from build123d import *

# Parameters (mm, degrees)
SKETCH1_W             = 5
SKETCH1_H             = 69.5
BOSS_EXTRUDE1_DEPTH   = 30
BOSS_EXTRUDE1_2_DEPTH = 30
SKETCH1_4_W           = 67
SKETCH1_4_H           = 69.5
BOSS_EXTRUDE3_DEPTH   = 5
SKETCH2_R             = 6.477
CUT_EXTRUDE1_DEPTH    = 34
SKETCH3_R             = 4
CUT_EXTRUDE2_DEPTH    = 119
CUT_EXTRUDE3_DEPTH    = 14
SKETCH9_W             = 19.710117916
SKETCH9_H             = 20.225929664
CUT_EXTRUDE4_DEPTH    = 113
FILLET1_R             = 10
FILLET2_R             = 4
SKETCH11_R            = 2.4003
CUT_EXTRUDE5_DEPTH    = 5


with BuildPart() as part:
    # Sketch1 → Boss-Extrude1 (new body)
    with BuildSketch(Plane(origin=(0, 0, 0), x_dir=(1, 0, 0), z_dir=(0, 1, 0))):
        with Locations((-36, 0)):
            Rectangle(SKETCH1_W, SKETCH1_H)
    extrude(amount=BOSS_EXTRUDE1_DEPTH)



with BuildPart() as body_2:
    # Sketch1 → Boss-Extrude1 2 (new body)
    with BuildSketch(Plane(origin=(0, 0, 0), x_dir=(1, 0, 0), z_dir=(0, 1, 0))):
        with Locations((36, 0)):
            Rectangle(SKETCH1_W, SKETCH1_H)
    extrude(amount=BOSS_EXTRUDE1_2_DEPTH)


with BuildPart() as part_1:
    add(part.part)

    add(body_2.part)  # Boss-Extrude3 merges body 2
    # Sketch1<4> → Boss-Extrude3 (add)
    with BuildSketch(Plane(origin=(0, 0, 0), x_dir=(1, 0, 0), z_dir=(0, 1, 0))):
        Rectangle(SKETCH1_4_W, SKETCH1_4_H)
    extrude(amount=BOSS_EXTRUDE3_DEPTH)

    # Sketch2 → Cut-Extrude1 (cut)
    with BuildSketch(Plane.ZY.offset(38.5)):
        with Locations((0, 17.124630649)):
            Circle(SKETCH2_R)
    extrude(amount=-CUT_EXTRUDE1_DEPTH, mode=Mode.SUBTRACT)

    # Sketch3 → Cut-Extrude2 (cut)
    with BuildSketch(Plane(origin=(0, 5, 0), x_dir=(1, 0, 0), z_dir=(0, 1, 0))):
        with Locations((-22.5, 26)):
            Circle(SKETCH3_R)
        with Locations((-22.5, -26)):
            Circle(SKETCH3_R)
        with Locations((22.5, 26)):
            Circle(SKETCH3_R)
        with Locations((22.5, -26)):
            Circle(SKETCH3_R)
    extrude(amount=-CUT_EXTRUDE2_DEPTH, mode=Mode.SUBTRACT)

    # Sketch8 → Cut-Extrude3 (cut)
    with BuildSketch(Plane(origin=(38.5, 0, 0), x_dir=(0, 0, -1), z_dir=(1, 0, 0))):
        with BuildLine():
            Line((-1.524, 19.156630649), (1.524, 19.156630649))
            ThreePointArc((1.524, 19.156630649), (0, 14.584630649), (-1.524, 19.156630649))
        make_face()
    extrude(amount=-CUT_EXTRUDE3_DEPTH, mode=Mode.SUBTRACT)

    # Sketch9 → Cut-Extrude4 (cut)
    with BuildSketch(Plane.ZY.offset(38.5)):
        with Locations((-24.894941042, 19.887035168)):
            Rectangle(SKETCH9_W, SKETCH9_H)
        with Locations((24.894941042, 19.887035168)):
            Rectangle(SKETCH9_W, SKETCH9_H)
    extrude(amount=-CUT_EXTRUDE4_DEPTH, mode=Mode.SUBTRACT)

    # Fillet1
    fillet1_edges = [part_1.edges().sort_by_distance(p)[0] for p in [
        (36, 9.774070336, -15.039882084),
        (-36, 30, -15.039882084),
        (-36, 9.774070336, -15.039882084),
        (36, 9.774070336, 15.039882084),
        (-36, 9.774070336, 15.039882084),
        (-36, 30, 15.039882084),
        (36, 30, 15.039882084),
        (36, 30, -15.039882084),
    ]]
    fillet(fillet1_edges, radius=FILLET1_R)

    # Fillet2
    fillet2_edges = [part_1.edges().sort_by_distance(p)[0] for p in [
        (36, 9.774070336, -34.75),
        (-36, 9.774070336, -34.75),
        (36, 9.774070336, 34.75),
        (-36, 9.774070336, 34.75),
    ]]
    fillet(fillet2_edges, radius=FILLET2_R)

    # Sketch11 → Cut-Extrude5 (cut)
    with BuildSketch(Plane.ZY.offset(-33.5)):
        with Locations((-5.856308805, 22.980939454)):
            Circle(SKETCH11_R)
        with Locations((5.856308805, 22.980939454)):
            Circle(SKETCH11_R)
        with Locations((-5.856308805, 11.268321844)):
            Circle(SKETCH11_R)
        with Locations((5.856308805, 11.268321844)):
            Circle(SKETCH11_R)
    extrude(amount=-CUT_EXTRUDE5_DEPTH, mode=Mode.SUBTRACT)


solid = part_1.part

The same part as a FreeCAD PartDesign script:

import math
import FreeCAD as App
import Part
import Sketcher
from FreeCAD import Vector


def edges_at(feature, points):
    """Names of the edges that pass closest to the given points."""
    edges = feature.Shape.Edges
    near = lambda p: min(range(len(edges)), key=lambda i: edges[i].distToShape(Part.Vertex(*p))[0])
    return sorted({f"Edge{near(p) + 1}" for p in points})

doc = App.newDocument("Part")
body = doc.addObject("PartDesign::Body", "Body")

# Sketch on XZ plane
sketch1 = body.newObject("Sketcher::SketchObject", "Sketch")
sketch1.AttachmentSupport = (doc.getObject("XZ_Plane"), [""])
sketch1.MapMode = "FlatFace"
sketch1.addGeometry([
    Part.LineSegment(Vector(-38, -35, 0), Vector(-38, 35, 0)),
    Part.LineSegment(Vector(-38, 35, 0), Vector(-34, 35, 0)),
    Part.LineSegment(Vector(-34, 35, 0), Vector(-34, -35, 0)),
    Part.LineSegment(Vector(-34, -35, 0), Vector(-38, -35, 0)),
], False)
sketch1.addConstraint([
    Sketcher.Constraint("Coincident", 0, 2, 1, 1),
    Sketcher.Constraint("Coincident", 1, 2, 2, 1),
    Sketcher.Constraint("Coincident", 2, 2, 3, 1),
    Sketcher.Constraint("Coincident", 3, 2, 0, 1),
    Sketcher.Constraint("Vertical", 0),
    Sketcher.Constraint("Horizontal", 1),
    Sketcher.Constraint("Vertical", 2),
    Sketcher.Constraint("Horizontal", 3),
    Sketcher.Constraint("DistanceX", 1, 1, 1, 2, 5.0),
    Sketcher.Constraint("DistanceY", 0, 1, 0, 2, 69.5),
    Sketcher.Constraint("DistanceX", 0, 2, -1, 1, 38.5),
    Sketcher.Constraint("DistanceY", -1, 1, 0, 2, 34.75),
])
pad1 = body.newObject("PartDesign::Pad", "Pad")
pad1.Profile = sketch1
pad1.Length = 30
pad1.Reversed = True
body2 = doc.addObject("PartDesign::Body", "Body001")

# Sketch on XZ plane
sketch2 = body2.newObject("Sketcher::SketchObject", "Sketch001")
sketch2.AttachmentSupport = (doc.getObject("XZ_Plane001"), [""])
sketch2.MapMode = "FlatFace"
sketch2.addGeometry([
    Part.LineSegment(Vector(34, -35, 0), Vector(34, 35, 0)),
    Part.LineSegment(Vector(34, 35, 0), Vector(38, 35, 0)),
    Part.LineSegment(Vector(38, 35, 0), Vector(38, -35, 0)),
    Part.LineSegment(Vector(38, -35, 0), Vector(34, -35, 0)),
], False)
sketch2.addConstraint([
    Sketcher.Constraint("Coincident", 0, 2, 1, 1),
    Sketcher.Constraint("Coincident", 1, 2, 2, 1),
    Sketcher.Constraint("Coincident", 2, 2, 3, 1),
    Sketcher.Constraint("Coincident", 3, 2, 0, 1),
    Sketcher.Constraint("Vertical", 0),
    Sketcher.Constraint("Horizontal", 1),
    Sketcher.Constraint("Vertical", 2),
    Sketcher.Constraint("Horizontal", 3),
    Sketcher.Constraint("DistanceX", 1, 1, 1, 2, 5.0),
    Sketcher.Constraint("DistanceY", 0, 1, 0, 2, 69.5),
    Sketcher.Constraint("DistanceX", -1, 1, 0, 2, 33.5),
    Sketcher.Constraint("DistanceY", -1, 1, 0, 2, 34.75),
])
pad2 = body2.newObject("PartDesign::Pad", "Pad001")
pad2.Profile = sketch2
pad2.Length = 30
pad2.Reversed = True
body.AllowCompound = True
doc.recompute()

boolean = body.newObject("PartDesign::Boolean", "Boolean")
boolean.Type = "Fuse"
boolean.addObjects([body2])

# Sketch on XZ plane
sketch3 = body.newObject("Sketcher::SketchObject", "Sketch002")
sketch3.AttachmentSupport = (doc.getObject("XZ_Plane"), [""])
sketch3.MapMode = "FlatFace"
sketch3.addGeometry([
    Part.LineSegment(Vector(-34, -35, 0), Vector(-34, 35, 0)),
    Part.LineSegment(Vector(-34, 35, 0), Vector(34, 35, 0)),
    Part.LineSegment(Vector(34, 35, 0), Vector(34, -35, 0)),
    Part.LineSegment(Vector(34, -35, 0), Vector(-34, -35, 0)),
], False)
sketch3.addConstraint([
    Sketcher.Constraint("Coincident", 0, 2, 1, 1),
    Sketcher.Constraint("Coincident", 1, 2, 2, 1),
    Sketcher.Constraint("Coincident", 2, 2, 3, 1),
    Sketcher.Constraint("Coincident", 3, 2, 0, 1),
    Sketcher.Constraint("Vertical", 0),
    Sketcher.Constraint("Horizontal", 1),
    Sketcher.Constraint("Vertical", 2),
    Sketcher.Constraint("Horizontal", 3),
    Sketcher.Constraint("Symmetric", 0, 2, 2, 2, -1, 1),
    Sketcher.Constraint("DistanceX", 1, 1, 1, 2, 67.0),
    Sketcher.Constraint("DistanceY", 0, 1, 0, 2, 69.5),
])
pad3 = body.newObject("PartDesign::Pad", "Pad002")
pad3.Profile = sketch3
pad3.Length = 5
pad3.Reversed = True

# Sketch on YZ plane
sketch4 = body.newObject("Sketcher::SketchObject", "Sketch003")
sketch4.AttachmentSupport = (doc.getObject("YZ_Plane"), [""])
sketch4.MapMode = "FlatFace"
sketch4.AttachmentOffset = App.Placement(Vector(0, 0, -38.5), App.Rotation())
sketch4.addGeometry(Part.Circle(Vector(17, 0, 0), Vector(0, 0, 1), 6), False)
sketch4.addConstraint([
    Sketcher.Constraint("PointOnObject", 0, 3, -1),
    Sketcher.Constraint("Diameter", 0, 12.954),
    Sketcher.Constraint("DistanceX", -1, 1, 0, 3, 17.124631),
])
pocket1 = body.newObject("PartDesign::Pocket", "Pocket")
pocket1.Profile = sketch4
pocket1.Length = 34
pocket1.Reversed = True

# Sketch on XZ plane
sketch5 = body.newObject("Sketcher::SketchObject", "Sketch004")
sketch5.AttachmentSupport = (doc.getObject("XZ_Plane"), [""])
sketch5.MapMode = "FlatFace"
sketch5.AttachmentOffset = App.Placement(Vector(0, 0, -5), App.Rotation())
sketch5.addGeometry([
    Part.Circle(Vector(-22.5, -26, 0), Vector(0, 0, 1), 4),
    Part.Circle(Vector(-22.5, 26, 0), Vector(0, 0, 1), 4),
    Part.Circle(Vector(22.5, -26, 0), Vector(0, 0, 1), 4),
    Part.Circle(Vector(22.5, 26, 0), Vector(0, 0, 1), 4),
], False)
sketch5.addConstraint([
    Sketcher.Constraint("Equal", 0, 1),
    Sketcher.Constraint("Equal", 1, 2),
    Sketcher.Constraint("Equal", 2, 3),
    Sketcher.Constraint("Symmetric", 1, 3, 2, 3, -1, 1),
    Sketcher.Constraint("Symmetric", 0, 3, 3, 3, -1, 1),
    Sketcher.Constraint("Symmetric", 0, 3, 2, 3, -2),
    Sketcher.Constraint("Diameter", 0, 8.0),
    Sketcher.Constraint("DistanceY", 0, 3, -1, 1, 26.0),
    Sketcher.Constraint("DistanceX", 0, 3, 2, 3, 45.0),
])
pocket2 = body.newObject("PartDesign::Pocket", "Pocket001")
pocket2.Profile = sketch5
pocket2.Length = 119
pocket2.Reversed = True

# Sketch on YZ plane
sketch6 = body.newObject("Sketcher::SketchObject", "Sketch005")
sketch6.AttachmentSupport = (doc.getObject("YZ_Plane"), [""])
sketch6.MapMode = "FlatFace"
sketch6.AttachmentOffset = App.Placement(Vector(0, 0, 38.5), App.Rotation())
sketch6.addGeometry([
    Part.LineSegment(Vector(19.2, -1.5, 0), Vector(19.2, 1.5, 0)),
    Part.ArcOfCircle(Part.Circle(Vector(17.1, 0, 0), Vector(0, 0, 1), 2.5), math.radians(37), math.radians(323)),
], False)
sketch6.addConstraint([
    Sketcher.Constraint("Coincident", 0, 1, 1, 2),
    Sketcher.Constraint("Coincident", 1, 1, 0, 2),
    Sketcher.Constraint("Vertical", 0),
    Sketcher.Constraint("PointOnObject", 1, 3, -1),
    Sketcher.Constraint("Radius", 1, 2.54),
    Sketcher.Constraint("DistanceY", 0, 1, 0, 2, 3.048),
    Sketcher.Constraint("DistanceX", -1, 1, 1, 3, 17.124631),
])
pocket3 = body.newObject("PartDesign::Pocket", "Pocket002")
pocket3.Profile = sketch6
pocket3.Length = 14

# Sketch on YZ plane
sketch7 = body.newObject("Sketcher::SketchObject", "Sketch006")
sketch7.AttachmentSupport = (doc.getObject("YZ_Plane"), [""])
sketch7.MapMode = "FlatFace"
sketch7.AttachmentOffset = App.Placement(Vector(0, 0, -38.5), App.Rotation())
sketch7.addGeometry([
    Part.LineSegment(Vector(30, -35, 0), Vector(10, -35, 0)),  # 0
    Part.LineSegment(Vector(10, -35, 0), Vector(10, -15, 0)),  # 1
    Part.LineSegment(Vector(10, -15, 0), Vector(30, -15, 0)),  # 2
    Part.LineSegment(Vector(30, -15, 0), Vector(30, -35, 0)),  # 3
    Part.LineSegment(Vector(30, 15, 0), Vector(10, 15, 0)),  # 4
    Part.LineSegment(Vector(10, 15, 0), Vector(10, 35, 0)),  # 5
    Part.LineSegment(Vector(10, 35, 0), Vector(30, 35, 0)),  # 6
    Part.LineSegment(Vector(30, 35, 0), Vector(30, 15, 0)),  # 7
], False)
sketch7.addConstraint([
    Sketcher.Constraint("Coincident", 0, 2, 1, 1),
    Sketcher.Constraint("Coincident", 1, 2, 2, 1),
    Sketcher.Constraint("Coincident", 2, 2, 3, 1),
    Sketcher.Constraint("Coincident", 3, 2, 0, 1),
    Sketcher.Constraint("Coincident", 4, 2, 5, 1),
    Sketcher.Constraint("Coincident", 5, 2, 6, 1),
    Sketcher.Constraint("Coincident", 6, 2, 7, 1),
    Sketcher.Constraint("Coincident", 7, 2, 4, 1),
    Sketcher.Constraint("Horizontal", 0),
    Sketcher.Constraint("Vertical", 1),
    Sketcher.Constraint("Horizontal", 2),
    Sketcher.Constraint("Vertical", 3),
    Sketcher.Constraint("Horizontal", 4),
    Sketcher.Constraint("Vertical", 5),
    Sketcher.Constraint("Horizontal", 6),
    Sketcher.Constraint("Vertical", 7),
    Sketcher.Constraint("Symmetric", 1, 2, 4, 2, -1),
    Sketcher.Constraint("Symmetric", 3, 2, 6, 2, -1),
    Sketcher.Constraint("DistanceX", -1, 1, 2, 2, 30.0),
    Sketcher.Constraint("DistanceY", 0, 2, 5, 2, 69.5),
    Sketcher.Constraint("DistanceX", 0, 2, 0, 1, 20.22593),
    Sketcher.Constraint("DistanceY", 1, 1, 1, 2, 19.710118),
])
pocket4 = body.newObject("PartDesign::Pocket", "Pocket003")
pocket4.Profile = sketch7
pocket4.Length = 113
pocket4.Reversed = True
doc.recompute()

fillet = body.newObject("PartDesign::Fillet", "Fillet")
fillet.Base = (pocket4, edges_at(pocket4, [
    (36, 9.774, -15.04),
    (-36, 30, -15.04),
    (-36, 9.774, -15.04),
    (36, 9.774, 15.04),
    (-36, 9.774, 15.04),
    (-36, 30, 15.04),
    (36, 30, 15.04),
    (36, 30, -15.04),
]))
fillet.Radius = 10
doc.recompute()

fillet2 = body.newObject("PartDesign::Fillet", "Fillet001")
fillet2.Base = (fillet, edges_at(fillet, [
    (36, 9.774, -34.75),
    (-36, 9.774, -34.75),
    (36, 9.774, 34.75),
    (-36, 9.774, 34.75),
]))
fillet2.Radius = 4

# Sketch on YZ plane
sketch8 = body.newObject("Sketcher::SketchObject", "Sketch007")
sketch8.AttachmentSupport = (doc.getObject("YZ_Plane"), [""])
sketch8.MapMode = "FlatFace"
sketch8.AttachmentOffset = App.Placement(Vector(0, 0, 33.5), App.Rotation())
sketch8.addGeometry([
    Part.Circle(Vector(23, -5.9, 0), Vector(0, 0, 1), 2.4),
    Part.Circle(Vector(23, 5.9, 0), Vector(0, 0, 1), 2.4),
    Part.Circle(Vector(11.3, -5.9, 0), Vector(0, 0, 1), 2.4),
    Part.Circle(Vector(11.3, 5.9, 0), Vector(0, 0, 1), 2.4),
], False)
sketch8.addConstraint([
    Sketcher.Constraint("Equal", 0, 1),
    Sketcher.Constraint("Equal", 1, 2),
    Sketcher.Constraint("Equal", 2, 3),
    Sketcher.Constraint("Symmetric", 0, 3, 1, 3, -1),
    Sketcher.Constraint("Symmetric", 2, 3, 3, 3, -1),
    Sketcher.Constraint("Horizontal", 0, 3, 2, 3),
    Sketcher.Constraint("Diameter", 0, 4.8006),
    Sketcher.Constraint("DistanceX", -1, 1, 0, 3, 22.980939),
    Sketcher.Constraint("DistanceY", 0, 3, -1, 1, 5.856309),
    Sketcher.Constraint("DistanceX", -1, 1, 2, 3, 11.268322),
])
pocket5 = body.newObject("PartDesign::Pocket", "Pocket004")
pocket5.Profile = sketch8
pocket5.Length = 5
pocket5.Reversed = True

doc.recompute()
